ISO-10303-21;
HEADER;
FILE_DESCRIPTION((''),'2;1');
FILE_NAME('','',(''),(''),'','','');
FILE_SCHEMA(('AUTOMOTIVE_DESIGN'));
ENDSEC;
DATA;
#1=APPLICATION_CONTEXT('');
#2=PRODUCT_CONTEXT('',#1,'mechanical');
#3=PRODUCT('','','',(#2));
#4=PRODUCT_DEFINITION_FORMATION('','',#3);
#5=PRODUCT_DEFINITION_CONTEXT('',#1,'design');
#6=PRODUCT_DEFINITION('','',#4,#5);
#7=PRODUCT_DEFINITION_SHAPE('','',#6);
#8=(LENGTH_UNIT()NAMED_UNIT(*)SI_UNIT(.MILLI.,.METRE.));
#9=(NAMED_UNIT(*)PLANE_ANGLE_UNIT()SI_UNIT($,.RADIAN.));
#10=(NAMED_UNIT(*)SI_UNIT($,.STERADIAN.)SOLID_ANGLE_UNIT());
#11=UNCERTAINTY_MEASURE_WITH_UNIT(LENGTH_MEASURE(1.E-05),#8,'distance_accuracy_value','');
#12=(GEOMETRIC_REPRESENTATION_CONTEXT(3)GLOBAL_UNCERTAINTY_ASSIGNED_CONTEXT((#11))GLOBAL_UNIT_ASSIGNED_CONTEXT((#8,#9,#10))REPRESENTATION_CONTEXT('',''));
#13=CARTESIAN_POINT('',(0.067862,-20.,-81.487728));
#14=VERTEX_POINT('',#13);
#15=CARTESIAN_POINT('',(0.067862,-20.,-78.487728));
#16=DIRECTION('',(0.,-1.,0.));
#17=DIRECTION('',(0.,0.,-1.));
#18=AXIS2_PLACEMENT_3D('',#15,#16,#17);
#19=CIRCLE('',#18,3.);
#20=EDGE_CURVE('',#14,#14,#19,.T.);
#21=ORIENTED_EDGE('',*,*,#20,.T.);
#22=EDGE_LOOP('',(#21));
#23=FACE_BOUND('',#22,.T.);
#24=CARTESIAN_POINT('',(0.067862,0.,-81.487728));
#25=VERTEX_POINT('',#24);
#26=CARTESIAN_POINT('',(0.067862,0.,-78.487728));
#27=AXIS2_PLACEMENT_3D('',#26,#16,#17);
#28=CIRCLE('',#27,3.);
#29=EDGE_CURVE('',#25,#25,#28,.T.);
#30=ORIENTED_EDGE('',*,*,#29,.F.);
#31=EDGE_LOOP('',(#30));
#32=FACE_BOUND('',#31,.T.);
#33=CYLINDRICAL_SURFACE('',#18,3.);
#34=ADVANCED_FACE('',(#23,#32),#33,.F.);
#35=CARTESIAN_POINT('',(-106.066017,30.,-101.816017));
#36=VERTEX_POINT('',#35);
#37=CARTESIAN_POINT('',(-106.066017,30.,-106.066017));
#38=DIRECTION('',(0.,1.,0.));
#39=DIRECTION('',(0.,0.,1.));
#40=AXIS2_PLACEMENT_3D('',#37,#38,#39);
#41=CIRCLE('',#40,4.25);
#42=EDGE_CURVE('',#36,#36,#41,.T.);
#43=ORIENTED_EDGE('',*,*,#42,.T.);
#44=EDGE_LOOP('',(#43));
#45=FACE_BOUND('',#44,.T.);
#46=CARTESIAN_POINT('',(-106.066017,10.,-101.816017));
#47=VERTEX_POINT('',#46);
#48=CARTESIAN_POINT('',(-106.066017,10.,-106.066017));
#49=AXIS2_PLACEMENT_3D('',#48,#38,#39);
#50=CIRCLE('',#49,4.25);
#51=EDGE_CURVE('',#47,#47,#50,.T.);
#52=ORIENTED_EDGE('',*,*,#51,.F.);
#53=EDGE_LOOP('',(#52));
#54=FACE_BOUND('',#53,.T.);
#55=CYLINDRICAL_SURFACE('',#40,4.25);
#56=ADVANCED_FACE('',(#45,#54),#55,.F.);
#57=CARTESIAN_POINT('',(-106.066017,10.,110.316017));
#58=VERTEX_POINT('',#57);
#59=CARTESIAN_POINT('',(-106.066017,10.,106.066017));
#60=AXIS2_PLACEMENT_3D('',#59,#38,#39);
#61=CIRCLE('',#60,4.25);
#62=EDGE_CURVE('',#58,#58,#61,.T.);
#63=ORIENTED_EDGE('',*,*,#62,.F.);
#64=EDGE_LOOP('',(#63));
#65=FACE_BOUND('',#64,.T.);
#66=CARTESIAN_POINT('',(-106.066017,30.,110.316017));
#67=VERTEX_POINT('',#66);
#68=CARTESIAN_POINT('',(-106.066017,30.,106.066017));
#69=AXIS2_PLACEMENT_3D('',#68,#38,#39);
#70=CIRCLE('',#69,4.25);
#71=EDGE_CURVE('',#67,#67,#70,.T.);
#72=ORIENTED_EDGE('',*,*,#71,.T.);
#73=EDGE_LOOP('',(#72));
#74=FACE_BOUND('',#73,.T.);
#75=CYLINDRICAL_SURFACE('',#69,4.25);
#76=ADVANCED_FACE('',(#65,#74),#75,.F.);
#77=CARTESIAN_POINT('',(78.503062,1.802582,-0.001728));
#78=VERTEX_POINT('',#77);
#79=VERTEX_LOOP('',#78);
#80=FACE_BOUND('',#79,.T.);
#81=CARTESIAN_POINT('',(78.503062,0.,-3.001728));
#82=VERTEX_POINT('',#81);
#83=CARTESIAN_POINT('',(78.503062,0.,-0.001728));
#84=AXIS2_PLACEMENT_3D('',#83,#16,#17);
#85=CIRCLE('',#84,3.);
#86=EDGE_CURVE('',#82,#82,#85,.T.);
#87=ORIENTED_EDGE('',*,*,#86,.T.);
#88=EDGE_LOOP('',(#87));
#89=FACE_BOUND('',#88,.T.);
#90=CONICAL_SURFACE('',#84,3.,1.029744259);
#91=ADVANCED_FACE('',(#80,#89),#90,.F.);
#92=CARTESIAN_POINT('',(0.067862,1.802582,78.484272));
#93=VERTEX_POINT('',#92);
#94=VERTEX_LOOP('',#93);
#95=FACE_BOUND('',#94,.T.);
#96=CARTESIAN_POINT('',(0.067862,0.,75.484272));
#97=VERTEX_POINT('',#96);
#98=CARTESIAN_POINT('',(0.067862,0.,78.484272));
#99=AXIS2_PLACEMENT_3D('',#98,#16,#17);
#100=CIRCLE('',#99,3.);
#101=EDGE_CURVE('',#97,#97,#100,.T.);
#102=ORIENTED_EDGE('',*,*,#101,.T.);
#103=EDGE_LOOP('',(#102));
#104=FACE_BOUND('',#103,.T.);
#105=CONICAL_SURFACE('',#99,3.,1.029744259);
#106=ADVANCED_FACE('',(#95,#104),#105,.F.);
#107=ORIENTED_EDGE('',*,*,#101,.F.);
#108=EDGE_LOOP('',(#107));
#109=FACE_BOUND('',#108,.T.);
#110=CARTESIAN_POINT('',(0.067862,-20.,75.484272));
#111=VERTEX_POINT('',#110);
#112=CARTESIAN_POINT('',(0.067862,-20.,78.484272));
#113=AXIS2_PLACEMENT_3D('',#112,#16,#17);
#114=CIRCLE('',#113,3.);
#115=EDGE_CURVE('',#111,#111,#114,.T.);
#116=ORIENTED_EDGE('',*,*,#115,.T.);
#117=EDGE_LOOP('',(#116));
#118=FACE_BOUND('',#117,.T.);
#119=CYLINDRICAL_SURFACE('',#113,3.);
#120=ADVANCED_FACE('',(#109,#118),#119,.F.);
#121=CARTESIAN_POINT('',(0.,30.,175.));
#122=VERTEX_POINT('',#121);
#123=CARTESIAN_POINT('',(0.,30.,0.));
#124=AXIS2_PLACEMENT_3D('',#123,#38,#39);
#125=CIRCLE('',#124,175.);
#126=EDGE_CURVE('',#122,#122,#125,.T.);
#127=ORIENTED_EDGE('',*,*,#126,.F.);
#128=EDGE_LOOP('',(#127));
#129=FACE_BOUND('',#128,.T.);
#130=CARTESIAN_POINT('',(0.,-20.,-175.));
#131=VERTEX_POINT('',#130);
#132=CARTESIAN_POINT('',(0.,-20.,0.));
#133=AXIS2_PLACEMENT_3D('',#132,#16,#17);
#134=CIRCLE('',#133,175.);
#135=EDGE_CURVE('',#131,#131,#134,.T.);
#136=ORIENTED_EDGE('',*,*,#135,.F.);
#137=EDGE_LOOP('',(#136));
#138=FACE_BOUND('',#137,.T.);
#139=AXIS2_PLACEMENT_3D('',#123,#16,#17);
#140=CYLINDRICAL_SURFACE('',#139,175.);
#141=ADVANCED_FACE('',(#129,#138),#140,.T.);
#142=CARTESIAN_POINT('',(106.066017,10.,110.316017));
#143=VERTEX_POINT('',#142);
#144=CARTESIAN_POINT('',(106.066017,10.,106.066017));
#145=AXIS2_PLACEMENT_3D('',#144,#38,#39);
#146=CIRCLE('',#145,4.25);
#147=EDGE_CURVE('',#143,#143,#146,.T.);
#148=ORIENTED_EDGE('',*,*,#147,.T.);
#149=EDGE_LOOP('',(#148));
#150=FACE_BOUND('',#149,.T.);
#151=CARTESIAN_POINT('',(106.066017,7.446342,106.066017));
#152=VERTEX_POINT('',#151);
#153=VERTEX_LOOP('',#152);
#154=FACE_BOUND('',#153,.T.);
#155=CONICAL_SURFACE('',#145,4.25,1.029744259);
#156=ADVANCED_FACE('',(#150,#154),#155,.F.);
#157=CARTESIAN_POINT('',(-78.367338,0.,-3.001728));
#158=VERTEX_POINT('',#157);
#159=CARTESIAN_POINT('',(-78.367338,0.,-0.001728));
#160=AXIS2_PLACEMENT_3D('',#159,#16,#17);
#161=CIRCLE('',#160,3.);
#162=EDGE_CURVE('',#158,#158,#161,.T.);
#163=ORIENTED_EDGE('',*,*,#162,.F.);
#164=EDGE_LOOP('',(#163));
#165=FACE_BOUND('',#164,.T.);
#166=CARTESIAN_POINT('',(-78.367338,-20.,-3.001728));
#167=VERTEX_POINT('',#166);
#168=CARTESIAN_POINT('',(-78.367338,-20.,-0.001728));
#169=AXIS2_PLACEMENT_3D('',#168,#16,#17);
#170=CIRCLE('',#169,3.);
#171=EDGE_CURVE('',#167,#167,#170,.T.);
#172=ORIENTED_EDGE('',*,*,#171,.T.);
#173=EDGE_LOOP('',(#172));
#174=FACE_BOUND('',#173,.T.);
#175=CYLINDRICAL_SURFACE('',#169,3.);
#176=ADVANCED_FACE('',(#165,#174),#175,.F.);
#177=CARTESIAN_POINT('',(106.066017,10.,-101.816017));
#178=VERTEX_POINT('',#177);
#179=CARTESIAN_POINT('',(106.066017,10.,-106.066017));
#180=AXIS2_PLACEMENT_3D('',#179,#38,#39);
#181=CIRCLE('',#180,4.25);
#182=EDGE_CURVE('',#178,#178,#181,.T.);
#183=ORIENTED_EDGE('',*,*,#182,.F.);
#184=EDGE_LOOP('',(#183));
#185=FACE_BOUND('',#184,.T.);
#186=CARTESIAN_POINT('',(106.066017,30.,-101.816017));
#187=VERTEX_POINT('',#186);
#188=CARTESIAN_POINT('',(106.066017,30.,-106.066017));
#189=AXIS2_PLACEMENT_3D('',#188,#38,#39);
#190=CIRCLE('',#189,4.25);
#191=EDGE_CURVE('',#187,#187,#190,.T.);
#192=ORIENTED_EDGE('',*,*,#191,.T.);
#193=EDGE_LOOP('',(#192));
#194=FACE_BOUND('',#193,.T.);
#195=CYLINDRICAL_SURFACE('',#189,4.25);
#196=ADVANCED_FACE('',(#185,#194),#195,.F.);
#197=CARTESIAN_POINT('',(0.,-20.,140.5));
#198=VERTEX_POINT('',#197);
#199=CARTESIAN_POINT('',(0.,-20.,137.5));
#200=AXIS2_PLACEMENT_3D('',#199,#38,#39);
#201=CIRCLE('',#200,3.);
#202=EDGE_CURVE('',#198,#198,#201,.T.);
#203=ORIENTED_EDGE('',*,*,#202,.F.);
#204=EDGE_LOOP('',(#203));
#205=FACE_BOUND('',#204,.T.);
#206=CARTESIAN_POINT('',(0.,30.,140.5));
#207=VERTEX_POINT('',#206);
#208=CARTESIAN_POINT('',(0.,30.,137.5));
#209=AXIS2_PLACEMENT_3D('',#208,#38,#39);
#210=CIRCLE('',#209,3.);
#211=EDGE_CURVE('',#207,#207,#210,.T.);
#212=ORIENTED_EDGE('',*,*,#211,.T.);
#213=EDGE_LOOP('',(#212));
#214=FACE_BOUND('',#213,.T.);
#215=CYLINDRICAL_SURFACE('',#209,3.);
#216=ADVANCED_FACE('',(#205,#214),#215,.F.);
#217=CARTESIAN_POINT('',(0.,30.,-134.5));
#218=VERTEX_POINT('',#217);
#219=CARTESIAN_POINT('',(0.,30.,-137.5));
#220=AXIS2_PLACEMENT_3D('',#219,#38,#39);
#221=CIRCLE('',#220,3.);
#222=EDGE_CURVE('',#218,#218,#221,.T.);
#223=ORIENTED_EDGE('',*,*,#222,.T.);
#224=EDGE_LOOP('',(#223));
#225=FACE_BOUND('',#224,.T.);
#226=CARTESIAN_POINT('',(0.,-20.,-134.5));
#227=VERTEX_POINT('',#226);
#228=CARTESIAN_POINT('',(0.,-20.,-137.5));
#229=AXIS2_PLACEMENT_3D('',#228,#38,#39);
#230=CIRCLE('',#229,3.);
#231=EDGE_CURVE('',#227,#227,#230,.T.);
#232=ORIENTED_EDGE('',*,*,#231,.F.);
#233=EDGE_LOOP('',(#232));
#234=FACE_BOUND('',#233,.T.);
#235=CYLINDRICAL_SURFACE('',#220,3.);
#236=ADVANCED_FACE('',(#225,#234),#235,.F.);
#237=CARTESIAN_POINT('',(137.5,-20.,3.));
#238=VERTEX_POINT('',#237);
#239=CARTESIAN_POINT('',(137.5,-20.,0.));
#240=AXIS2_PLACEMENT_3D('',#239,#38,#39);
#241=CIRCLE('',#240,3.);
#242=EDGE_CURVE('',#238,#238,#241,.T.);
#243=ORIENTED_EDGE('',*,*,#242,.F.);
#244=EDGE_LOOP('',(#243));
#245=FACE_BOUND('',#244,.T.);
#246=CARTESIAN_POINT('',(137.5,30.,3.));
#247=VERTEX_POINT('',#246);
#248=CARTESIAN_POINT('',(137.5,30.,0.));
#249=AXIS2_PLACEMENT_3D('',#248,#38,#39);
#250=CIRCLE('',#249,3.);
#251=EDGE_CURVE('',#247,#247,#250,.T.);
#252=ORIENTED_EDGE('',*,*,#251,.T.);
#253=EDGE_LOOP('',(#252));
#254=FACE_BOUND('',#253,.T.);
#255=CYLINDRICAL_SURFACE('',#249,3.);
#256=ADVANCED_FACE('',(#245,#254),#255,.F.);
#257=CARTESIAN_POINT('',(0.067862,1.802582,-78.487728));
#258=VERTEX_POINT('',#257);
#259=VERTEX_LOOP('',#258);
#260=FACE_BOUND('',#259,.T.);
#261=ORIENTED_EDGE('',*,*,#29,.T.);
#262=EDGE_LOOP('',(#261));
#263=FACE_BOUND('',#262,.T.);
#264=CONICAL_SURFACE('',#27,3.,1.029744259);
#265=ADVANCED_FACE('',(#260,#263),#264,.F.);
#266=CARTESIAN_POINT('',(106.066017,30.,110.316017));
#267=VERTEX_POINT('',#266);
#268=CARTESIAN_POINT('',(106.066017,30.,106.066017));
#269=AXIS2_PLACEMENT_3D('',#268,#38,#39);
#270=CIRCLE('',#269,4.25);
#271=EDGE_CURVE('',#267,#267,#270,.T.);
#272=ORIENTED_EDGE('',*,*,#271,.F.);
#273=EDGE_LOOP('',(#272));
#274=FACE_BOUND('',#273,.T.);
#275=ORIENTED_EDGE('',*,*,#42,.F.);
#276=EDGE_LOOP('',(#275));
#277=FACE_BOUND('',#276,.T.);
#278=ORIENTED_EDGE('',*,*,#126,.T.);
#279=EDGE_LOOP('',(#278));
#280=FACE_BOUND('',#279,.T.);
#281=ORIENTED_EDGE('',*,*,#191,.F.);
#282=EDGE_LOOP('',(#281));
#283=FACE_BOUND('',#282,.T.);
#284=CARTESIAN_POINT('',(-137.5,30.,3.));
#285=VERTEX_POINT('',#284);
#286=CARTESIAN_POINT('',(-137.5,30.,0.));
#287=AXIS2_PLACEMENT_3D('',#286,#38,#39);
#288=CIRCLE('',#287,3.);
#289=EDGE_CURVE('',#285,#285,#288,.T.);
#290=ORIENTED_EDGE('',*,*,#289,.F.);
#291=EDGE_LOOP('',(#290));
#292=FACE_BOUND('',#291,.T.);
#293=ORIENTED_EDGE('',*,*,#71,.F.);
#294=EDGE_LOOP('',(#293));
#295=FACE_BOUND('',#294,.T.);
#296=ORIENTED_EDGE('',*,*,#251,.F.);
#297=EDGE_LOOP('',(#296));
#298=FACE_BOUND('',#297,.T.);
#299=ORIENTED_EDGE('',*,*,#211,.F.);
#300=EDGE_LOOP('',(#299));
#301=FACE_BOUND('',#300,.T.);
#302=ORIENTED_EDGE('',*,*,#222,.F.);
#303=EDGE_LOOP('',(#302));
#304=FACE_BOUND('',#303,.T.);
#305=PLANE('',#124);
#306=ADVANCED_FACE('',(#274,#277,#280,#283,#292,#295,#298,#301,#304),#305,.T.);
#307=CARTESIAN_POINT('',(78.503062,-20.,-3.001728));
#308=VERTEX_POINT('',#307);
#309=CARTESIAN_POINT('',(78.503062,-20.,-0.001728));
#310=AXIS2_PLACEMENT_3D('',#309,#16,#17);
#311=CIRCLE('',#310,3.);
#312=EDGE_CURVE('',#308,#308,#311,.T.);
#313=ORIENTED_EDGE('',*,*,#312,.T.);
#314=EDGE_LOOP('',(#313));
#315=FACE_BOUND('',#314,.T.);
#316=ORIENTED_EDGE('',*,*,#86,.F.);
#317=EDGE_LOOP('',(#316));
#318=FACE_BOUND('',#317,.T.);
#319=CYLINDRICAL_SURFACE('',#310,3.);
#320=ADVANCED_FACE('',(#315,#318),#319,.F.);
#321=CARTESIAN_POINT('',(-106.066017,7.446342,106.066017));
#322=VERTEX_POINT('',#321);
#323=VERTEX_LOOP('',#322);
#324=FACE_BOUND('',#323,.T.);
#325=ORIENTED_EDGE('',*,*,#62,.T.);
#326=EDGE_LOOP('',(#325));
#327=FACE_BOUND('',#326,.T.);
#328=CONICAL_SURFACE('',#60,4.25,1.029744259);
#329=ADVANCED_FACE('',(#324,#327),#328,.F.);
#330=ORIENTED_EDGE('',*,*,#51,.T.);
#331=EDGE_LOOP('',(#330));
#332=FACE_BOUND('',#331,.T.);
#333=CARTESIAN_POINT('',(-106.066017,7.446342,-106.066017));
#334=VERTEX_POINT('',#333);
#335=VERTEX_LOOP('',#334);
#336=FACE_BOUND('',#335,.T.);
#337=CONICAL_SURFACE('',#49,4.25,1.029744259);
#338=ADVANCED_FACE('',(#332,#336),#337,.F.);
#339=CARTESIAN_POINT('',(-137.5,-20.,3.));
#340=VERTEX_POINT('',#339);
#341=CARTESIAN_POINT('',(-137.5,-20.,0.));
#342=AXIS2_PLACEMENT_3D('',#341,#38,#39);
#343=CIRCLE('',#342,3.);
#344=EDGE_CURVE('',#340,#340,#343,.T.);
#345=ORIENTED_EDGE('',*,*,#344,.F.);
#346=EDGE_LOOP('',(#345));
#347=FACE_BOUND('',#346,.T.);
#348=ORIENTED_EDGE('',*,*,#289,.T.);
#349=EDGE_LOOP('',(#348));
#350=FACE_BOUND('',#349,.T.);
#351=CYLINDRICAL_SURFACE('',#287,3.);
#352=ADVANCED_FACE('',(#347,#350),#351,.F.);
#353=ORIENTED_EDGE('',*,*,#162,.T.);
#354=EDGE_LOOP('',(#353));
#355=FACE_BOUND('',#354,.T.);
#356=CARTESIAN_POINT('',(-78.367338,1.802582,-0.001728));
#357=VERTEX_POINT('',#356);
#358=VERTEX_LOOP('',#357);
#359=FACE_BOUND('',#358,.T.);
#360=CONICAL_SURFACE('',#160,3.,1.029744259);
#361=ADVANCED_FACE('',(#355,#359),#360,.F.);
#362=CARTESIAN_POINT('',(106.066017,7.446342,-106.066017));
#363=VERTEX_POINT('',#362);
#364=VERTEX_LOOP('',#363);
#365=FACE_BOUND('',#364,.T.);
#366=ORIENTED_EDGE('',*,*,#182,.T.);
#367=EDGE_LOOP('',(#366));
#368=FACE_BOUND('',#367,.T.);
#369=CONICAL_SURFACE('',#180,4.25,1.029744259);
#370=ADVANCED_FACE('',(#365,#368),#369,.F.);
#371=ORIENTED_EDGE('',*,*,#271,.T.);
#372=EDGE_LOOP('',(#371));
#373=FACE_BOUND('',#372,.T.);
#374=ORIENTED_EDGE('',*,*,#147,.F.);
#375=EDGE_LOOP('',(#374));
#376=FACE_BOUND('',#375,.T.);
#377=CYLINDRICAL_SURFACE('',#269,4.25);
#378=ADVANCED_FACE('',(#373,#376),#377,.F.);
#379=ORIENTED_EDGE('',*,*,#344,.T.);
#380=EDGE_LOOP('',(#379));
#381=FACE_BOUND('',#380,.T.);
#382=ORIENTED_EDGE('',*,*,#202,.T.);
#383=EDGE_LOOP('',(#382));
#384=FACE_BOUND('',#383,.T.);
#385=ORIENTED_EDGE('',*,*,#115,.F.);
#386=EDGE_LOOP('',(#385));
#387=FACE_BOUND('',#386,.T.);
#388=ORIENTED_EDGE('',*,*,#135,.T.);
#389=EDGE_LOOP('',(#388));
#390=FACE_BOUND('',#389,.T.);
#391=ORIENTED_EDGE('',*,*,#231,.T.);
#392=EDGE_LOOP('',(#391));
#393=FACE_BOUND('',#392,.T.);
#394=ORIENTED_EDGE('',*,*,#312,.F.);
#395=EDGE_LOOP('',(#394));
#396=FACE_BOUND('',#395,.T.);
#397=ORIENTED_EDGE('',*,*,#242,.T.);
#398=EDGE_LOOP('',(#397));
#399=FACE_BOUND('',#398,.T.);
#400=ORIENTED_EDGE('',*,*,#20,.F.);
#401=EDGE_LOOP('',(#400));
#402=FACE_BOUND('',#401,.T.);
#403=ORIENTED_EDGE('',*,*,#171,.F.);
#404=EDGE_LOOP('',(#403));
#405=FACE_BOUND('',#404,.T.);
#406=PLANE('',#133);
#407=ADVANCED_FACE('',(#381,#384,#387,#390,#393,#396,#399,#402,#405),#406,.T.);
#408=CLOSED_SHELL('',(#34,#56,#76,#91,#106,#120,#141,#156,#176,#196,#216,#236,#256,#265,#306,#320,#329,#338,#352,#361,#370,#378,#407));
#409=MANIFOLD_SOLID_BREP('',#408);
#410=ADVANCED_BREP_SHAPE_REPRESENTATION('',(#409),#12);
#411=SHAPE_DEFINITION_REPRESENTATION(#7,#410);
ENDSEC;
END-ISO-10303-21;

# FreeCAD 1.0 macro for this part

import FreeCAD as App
import Part
import Sketcher
from FreeCAD import Vector
Q = App.Units.Quantity

doc = App.newDocument("Part")
body = doc.addObject("PartDesign::Body", "Body")

# Sketch on XZ plane
sketch1 = body.newObject("Sketcher::SketchObject", "Sketch")
sketch1.AttachmentSupport = (doc.getObject("XZ_Plane"), [""])
sketch1.MapMode = "FlatFace"
sketch1.addGeometry(Part.Circle(Vector(0, 0, 0), Vector(0, 0, 1), 175), False)
sketch1.addConstraint(Sketcher.Constraint("Coincident", 0, 3, -1, 1))
sketch1.addConstraint(Sketcher.Constraint("Diameter", 0, Q("350 mm")))
pad1 = body.newObject("PartDesign::Pad", "Pad")
pad1.Profile = sketch1
pad1.Length = 30
pad1.Reversed = True

# Sketch on XZ plane
sketch2 = body.newObject("Sketcher::SketchObject", "Sketch001")
sketch2.AttachmentSupport = (doc.getObject("XZ_Plane"), [""])
sketch2.MapMode = "FlatFace"
sketch2.AttachmentOffset = App.Placement(Vector(0, 0, -30), App.Rotation())
sketch2.addGeometry(Part.Circle(Vector(-106.1, 106.1, 0), Vector(0, 0, 1), 4.2), False)
sketch2.addGeometry(Part.Circle(Vector(106.1, 106.1, 0), Vector(0, 0, 1), 4.2), False)
sketch2.addGeometry(Part.Circle(Vector(106.1, -106.1, 0), Vector(0, 0, 1), 4.2), False)
sketch2.addGeometry(Part.Circle(Vector(-106.1, -106.1, 0), Vector(0, 0, 1), 4.2), False)
sketch2.addConstraint(Sketcher.Constraint("Equal", 0, 1))
sketch2.addConstraint(Sketcher.Constraint("Equal", 1, 2))
sketch2.addConstraint(Sketcher.Constraint("Equal", 2, 3))
sketch2.addConstraint(Sketcher.Constraint("Symmetric", 0, 3, 2, 3, -1, 1))
sketch2.addConstraint(Sketcher.Constraint("Symmetric", 1, 3, 3, 3, -1, 1))
sketch2.addConstraint(Sketcher.Constraint("Symmetric", 0, 3, 1, 3, -2))
sketch2.addConstraint(Sketcher.Constraint("Diameter", 0, Q("8.5 mm")))
sketch2.addConstraint(Sketcher.Constraint("DistanceX", 0, 3, -1, 1, Q("106.066017 mm")))
sketch2.addConstraint(Sketcher.Constraint("DistanceY", -1, 1, 0, 3, Q("106.066017 mm")))
doc.recompute()
hole = body.newObject("PartDesign::Hole", "Hole")
hole.Profile = sketch2
hole.ThreadType = "None"
hole.Diameter = 8.5
hole.DepthType = "Dimension"
hole.Depth = 20
hole.DrillPoint = "Angled"
hole.DrillPointAngle = 118
hole.Reversed = True

# Sketch on XZ plane
sketch3 = body.newObject("Sketcher::SketchObject", "Sketch002")
sketch3.AttachmentSupport = (doc.getObject("XZ_Plane"), [""])
sketch3.MapMode = "FlatFace"
sketch3.addGeometry(Part.Circle(Vector(0, 0, 0), Vector(0, 0, 1), 175), False)
sketch3.addConstraint(Sketcher.Constraint("Coincident", 0, 3, -1, 1))
sketch3.addConstraint(Sketcher.Constraint("Diameter", 0, Q("350 mm")))
pad2 = body.newObject("PartDesign::Pad", "Pad001")
pad2.Profile = sketch3
pad2.Length = 20

# Sketch on XZ plane
sketch4 = body.newObject("Sketcher::SketchObject", "Sketch003")
sketch4.AttachmentSupport = (doc.getObject("XZ_Plane"), [""])
sketch4.MapMode = "FlatFace"
sketch4.AttachmentOffset = App.Placement(Vector(0, 0, -30), App.Rotation())
sketch4.addGeometry(Part.Circle(Vector(-137.5, 0, 0), Vector(0, 0, 1), 3), False)
sketch4.addGeometry(Part.Circle(Vector(0, 137.5, 0), Vector(0, 0, 1), 3), False)
sketch4.addGeometry(Part.Circle(Vector(137.5, 0, 0), Vector(0, 0, 1), 3), False)
sketch4.addGeometry(Part.Circle(Vector(0, -137.5, 0), Vector(0, 0, 1), 3), False)
sketch4.addConstraint(Sketcher.Constraint("Equal", 0, 1))
sketch4.addConstraint(Sketcher.Constraint("Equal", 1, 2))
sketch4.addConstraint(Sketcher.Constraint("Equal", 2, 3))
sketch4.addConstraint(Sketcher.Constraint("Symmetric", 0, 3, 2, 3, -1, 1))
sketch4.addConstraint(Sketcher.Constraint("Symmetric", 1, 3, 3, 3, -1, 1))
sketch4.addConstraint(Sketcher.Constraint("PointOnObject", 0, 3, -1))
sketch4.addConstraint(Sketcher.Constraint("PointOnObject", 1, 3, -2))
sketch4.addConstraint(Sketcher.Constraint("Diameter", 0, Q("6 mm")))
sketch4.addConstraint(Sketcher.Constraint("DistanceX", 0, 3, 2, 3, Q("275 mm")))
sketch4.addConstraint(Sketcher.Constraint("DistanceY", 3, 3, 1, 3, Q("275 mm")))
doc.recompute()
hole2 = body.newObject("PartDesign::Hole", "Hole001")
hole2.Profile = sketch4
hole2.ThreadType = "None"
hole2.Diameter = 6
hole2.DepthType = "ThroughAll"
hole2.Reversed = True

# Sketch on XZ plane
sketch5 = body.newObject("Sketcher::SketchObject", "Sketch004")
sketch5.AttachmentSupport = (doc.getObject("XZ_Plane"), [""])
sketch5.MapMode = "FlatFace"
sketch5.AttachmentOffset = App.Placement(Vector(0, 0, 20), App.Rotation())
sketch5.addGeometry(Part.Circle(Vector(-78.4, 0, 0), Vector(0, 0, 1), 3), False)
sketch5.addGeometry(Part.Circle(Vector(0.1, 78.5, 0), Vector(0, 0, 1), 3), False)
sketch5.addGeometry(Part.Circle(Vector(78.5, 0, 0), Vector(0, 0, 1), 3), False)
sketch5.addGeometry(Part.Circle(Vector(0.1, -78.5, 0), Vector(0, 0, 1), 3), False)
sketch5.addConstraint(Sketcher.Constraint("Equal", 0, 1))
sketch5.addConstraint(Sketcher.Constraint("Equal", 1, 2))
sketch5.addConstraint(Sketcher.Constraint("Equal", 2, 3))
sketch5.addConstraint(Sketcher.Constraint("Horizontal", 0, 3, 2, 3))
sketch5.addConstraint(Sketcher.Constraint("Vertical", 1, 3, 3, 3))
sketch5.addConstraint(Sketcher.Constraint("Diameter", 0, Q("6 mm")))
sketch5.addConstraint(Sketcher.Constraint("DistanceY", 0, 3, 1, 3, Q("78.486 mm")))
sketch5.addConstraint(Sketcher.Constraint("DistanceY", 3, 3, 0, 3, Q("78.486 mm")))
sketch5.addConstraint(Sketcher.Constraint("DistanceX", 0, 3, 1, 3, Q("78.4352 mm")))
sketch5.addConstraint(Sketcher.Constraint("DistanceX", 1, 3, 2, 3, Q("78.4352 mm")))
sketch5.addConstraint(Sketcher.Constraint("DistanceX", 0, 3, -1, 1, Q("78.367338 mm")))
sketch5.addConstraint(Sketcher.Constraint("DistanceY", 0, 3, -1, 1, Q("0.001728 mm")))
doc.recompute()
hole3 = body.newObject("PartDesign::Hole", "Hole002")
hole3.Profile = sketch5
hole3.ThreadType = "None"
hole3.Diameter = 6
hole3.DepthType = "Dimension"
hole3.Depth = 20
hole3.DrillPoint = "Angled"
hole3.DrillPointAngle = 118

doc.recompute()
